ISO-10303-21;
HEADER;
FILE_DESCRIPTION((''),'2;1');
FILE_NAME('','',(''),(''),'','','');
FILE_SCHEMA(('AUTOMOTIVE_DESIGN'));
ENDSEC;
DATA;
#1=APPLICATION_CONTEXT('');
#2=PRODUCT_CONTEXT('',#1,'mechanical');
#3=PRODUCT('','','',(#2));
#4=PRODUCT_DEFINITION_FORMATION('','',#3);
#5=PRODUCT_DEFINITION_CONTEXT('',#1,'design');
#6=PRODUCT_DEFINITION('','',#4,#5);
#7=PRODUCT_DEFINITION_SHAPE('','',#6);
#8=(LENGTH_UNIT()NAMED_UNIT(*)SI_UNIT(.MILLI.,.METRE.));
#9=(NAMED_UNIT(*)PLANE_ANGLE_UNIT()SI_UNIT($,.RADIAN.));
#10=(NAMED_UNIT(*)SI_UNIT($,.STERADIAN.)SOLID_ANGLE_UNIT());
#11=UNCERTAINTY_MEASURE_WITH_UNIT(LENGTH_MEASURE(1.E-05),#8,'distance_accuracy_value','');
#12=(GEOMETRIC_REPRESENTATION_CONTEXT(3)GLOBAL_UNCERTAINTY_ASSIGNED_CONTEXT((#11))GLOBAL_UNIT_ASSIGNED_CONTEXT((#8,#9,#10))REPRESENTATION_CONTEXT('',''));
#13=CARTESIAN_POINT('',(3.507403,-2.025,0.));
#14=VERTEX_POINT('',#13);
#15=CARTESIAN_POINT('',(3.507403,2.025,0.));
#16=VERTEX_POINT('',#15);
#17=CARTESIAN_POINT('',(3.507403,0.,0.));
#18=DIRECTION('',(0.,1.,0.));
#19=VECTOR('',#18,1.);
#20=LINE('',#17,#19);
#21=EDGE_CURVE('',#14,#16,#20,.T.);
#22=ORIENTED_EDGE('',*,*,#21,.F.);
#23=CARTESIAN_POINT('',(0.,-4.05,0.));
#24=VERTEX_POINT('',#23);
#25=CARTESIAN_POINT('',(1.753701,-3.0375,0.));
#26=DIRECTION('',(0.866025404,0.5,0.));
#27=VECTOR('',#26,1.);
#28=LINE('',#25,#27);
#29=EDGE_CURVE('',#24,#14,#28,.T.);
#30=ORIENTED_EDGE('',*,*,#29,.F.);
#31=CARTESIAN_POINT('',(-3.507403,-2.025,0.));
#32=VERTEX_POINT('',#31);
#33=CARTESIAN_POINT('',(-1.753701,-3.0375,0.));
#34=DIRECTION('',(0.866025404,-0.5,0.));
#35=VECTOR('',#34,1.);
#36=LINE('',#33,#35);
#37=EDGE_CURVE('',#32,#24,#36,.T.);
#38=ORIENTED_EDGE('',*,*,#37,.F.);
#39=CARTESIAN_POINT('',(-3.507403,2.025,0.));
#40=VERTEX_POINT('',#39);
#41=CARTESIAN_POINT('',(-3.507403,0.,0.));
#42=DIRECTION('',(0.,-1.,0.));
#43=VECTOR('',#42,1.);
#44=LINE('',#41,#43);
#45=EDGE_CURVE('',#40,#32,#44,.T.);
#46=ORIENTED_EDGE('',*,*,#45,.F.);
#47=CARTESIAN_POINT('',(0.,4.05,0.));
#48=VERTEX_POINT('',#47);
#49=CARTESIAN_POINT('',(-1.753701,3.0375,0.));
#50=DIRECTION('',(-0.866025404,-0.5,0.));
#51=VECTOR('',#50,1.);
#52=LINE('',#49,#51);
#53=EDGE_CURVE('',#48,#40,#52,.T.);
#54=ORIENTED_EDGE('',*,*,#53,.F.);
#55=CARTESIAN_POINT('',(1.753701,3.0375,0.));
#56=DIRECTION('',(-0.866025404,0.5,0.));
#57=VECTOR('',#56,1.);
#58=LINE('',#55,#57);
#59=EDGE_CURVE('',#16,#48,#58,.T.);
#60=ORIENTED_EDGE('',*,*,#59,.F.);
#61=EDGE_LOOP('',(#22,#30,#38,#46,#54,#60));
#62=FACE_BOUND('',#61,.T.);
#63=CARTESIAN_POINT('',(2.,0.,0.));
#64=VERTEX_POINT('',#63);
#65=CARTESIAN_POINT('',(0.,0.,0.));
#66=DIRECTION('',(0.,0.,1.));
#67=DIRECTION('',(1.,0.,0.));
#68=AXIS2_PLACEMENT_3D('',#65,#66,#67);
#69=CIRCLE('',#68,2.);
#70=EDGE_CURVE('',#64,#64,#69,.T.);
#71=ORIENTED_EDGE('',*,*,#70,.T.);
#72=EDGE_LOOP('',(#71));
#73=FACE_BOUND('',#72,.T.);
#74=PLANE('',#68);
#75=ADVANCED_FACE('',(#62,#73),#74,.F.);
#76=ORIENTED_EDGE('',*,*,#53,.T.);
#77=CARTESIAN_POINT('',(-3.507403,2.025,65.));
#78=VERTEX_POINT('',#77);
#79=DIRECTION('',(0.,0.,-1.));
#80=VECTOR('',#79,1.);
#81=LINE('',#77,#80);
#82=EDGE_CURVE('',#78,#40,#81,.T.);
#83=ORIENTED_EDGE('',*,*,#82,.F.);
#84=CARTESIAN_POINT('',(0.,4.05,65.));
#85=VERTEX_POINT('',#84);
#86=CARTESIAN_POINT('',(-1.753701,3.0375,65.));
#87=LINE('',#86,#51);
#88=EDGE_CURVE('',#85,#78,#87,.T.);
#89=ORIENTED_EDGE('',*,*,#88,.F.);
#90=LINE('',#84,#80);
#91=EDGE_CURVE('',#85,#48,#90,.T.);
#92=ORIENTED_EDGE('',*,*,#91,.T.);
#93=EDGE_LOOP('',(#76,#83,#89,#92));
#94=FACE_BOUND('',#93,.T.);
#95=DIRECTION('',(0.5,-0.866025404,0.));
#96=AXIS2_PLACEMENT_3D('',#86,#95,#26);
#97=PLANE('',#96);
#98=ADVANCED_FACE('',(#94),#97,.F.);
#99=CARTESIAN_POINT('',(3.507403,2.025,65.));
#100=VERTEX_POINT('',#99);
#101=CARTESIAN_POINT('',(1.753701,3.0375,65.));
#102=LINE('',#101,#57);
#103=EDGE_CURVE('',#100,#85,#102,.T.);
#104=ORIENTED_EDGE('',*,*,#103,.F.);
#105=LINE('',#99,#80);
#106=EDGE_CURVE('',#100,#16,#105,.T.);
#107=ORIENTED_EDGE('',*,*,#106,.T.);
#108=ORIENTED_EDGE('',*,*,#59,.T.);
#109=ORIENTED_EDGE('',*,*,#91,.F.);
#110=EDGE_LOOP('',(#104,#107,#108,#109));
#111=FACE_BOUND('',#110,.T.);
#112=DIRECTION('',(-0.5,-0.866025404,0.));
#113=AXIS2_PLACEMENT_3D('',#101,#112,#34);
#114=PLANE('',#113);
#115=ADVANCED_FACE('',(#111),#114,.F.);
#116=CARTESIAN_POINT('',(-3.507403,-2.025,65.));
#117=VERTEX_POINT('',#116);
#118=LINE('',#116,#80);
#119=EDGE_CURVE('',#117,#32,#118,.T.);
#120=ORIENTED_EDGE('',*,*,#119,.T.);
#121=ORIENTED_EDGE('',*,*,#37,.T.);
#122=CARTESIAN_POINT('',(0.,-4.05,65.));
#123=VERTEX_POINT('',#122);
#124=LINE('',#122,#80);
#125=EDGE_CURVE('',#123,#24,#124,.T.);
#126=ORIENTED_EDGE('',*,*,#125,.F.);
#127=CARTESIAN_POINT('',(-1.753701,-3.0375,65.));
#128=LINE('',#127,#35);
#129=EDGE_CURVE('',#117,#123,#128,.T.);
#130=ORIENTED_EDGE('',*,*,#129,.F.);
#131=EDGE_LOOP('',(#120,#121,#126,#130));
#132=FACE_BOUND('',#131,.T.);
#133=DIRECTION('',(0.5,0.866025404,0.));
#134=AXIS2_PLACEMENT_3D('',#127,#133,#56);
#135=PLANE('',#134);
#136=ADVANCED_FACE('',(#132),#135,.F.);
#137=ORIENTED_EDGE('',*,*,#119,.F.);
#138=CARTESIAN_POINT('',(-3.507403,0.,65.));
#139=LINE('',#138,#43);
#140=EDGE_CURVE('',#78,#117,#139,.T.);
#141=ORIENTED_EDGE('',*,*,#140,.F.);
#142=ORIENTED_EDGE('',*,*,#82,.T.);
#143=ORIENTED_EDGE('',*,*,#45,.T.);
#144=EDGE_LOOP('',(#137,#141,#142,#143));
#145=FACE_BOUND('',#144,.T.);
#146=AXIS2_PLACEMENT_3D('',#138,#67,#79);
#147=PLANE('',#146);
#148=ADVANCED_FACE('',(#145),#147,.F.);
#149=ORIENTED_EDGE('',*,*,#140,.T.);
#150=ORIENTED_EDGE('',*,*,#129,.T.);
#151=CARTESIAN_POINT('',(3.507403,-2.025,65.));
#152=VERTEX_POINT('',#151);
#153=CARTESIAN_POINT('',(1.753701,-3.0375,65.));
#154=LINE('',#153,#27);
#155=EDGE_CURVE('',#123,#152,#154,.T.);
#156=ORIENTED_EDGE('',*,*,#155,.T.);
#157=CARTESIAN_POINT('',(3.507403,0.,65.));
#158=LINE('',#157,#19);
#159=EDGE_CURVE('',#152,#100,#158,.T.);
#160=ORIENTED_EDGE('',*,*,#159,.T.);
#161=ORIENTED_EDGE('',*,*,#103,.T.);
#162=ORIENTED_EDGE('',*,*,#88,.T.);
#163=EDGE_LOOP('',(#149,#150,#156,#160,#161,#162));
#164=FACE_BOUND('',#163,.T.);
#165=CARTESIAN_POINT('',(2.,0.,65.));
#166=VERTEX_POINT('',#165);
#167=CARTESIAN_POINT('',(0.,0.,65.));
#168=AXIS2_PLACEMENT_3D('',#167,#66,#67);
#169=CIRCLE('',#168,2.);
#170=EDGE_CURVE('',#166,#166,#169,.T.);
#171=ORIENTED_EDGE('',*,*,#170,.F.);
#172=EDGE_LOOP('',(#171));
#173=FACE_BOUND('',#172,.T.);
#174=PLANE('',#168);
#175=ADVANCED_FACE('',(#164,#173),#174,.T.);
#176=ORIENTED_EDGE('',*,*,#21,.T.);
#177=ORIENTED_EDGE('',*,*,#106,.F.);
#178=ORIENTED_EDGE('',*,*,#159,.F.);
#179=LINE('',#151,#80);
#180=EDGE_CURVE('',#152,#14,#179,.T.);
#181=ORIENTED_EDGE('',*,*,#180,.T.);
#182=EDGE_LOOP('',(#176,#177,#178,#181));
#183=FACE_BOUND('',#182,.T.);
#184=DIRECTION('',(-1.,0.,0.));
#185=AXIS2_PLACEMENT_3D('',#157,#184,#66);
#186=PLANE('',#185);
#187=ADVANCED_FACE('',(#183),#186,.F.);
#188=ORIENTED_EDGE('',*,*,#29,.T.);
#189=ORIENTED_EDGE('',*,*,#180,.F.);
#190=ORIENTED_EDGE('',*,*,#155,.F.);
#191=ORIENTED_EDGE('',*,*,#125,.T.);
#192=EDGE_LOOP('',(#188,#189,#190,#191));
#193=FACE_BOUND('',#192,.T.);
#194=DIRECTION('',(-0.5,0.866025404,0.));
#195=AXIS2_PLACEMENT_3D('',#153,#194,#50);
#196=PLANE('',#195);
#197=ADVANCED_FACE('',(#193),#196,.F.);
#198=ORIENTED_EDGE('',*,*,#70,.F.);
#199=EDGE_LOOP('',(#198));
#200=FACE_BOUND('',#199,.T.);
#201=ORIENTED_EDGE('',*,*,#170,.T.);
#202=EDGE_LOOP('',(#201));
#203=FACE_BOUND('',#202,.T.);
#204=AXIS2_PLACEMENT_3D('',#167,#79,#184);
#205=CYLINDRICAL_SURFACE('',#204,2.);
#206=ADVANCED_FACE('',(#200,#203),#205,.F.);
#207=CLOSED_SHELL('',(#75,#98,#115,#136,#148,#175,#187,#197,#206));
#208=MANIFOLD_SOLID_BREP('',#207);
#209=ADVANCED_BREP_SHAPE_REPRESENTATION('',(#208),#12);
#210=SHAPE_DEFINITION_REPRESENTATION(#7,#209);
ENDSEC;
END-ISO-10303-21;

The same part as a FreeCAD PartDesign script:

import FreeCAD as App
import Part
import Sketcher
from FreeCAD import Vector
Q = App.Units.Quantity

doc = App.newDocument("Part")
body = doc.addObject("PartDesign::Body", "Body")

sketch1 = body.newObject("Sketcher::SketchObject", "Sketch")
sketch1.AttachmentSupport = (doc.getObject("XY_Plane"), [""])
sketch1.MapMode = "FlatFace"
sketch1.addGeometry(Part.LineSegment(Vector(0, 4, 0), Vector(-3.5, 2, 0)), False)
sketch1.addGeometry(Part.LineSegment(Vector(-3.5, 2, 0), Vector(-3.5, -2, 0)), False)
sketch1.addGeometry(Part.LineSegment(Vector(-3.5, -2, 0), Vector(0, -4, 0)), False)
sketch1.addGeometry(Part.LineSegment(Vector(0, -4, 0), Vector(3.5, -2, 0)), False)
sketch1.addGeometry(Part.LineSegment(Vector(3.5, -2, 0), Vector(3.5, 2, 0)), False)
sketch1.addGeometry(Part.LineSegment(Vector(3.5, 2, 0), Vector(0, 4, 0)), False)
sketch1.addGeometry(Part.Circle(Vector(0, 0, 0), Vector(0, 0, 1), 2), False)
sketch1.addConstraint(Sketcher.Constraint("Coincident", 0, 2, 1, 1))
sketch1.addConstraint(Sketcher.Constraint("Coincident", 1, 2, 2, 1))
sketch1.addConstraint(Sketcher.Constraint("Coincident", 2, 2, 3, 1))
sketch1.addConstraint(Sketcher.Constraint("Coincident", 3, 2, 4, 1))
sketch1.addConstraint(Sketcher.Constraint("Coincident", 4, 2, 5, 1))
sketch1.addConstraint(Sketcher.Constraint("Coincident", 5, 2, 0, 1))
sketch1.addConstraint(Sketcher.Constraint("Vertical", 1))
sketch1.addConstraint(Sketcher.Constraint("Vertical", 4))
sketch1.addConstraint(Sketcher.Constraint("Coincident", 6, 3, -1, 1))
sketch1.addConstraint(Sketcher.Constraint("Symmetric", 0, 2, 3, 2, -1, 1))
sketch1.addConstraint(Sketcher.Constraint("Symmetric", 2, 2, 5, 2, -1, 1))
sketch1.addConstraint(Sketcher.Constraint("PointOnObject", 2, 2, -2))
sketch1.addConstraint(Sketcher.Constraint("Parallel", 2, 5))
sketch1.addConstraint(Sketcher.Constraint("Horizontal", 1, 2, 3, 2))
sketch1.addConstraint(Sketcher.Constraint("Diameter", 6, 4.0))
sketch1.addConstraint(Sketcher.Constraint("Angle", 0, Q("-150 deg")))
sketch1.addConstraint(Sketcher.Constraint("DistanceY", 1, 2, 1, 1, 4.05))
sketch1.addConstraint(Sketcher.Constraint("Distance", 0, 4.05))
pad1 = body.newObject("PartDesign::Pad", "Pad")
pad1.Profile = sketch1
pad1.Length = 65

doc.recompute()
